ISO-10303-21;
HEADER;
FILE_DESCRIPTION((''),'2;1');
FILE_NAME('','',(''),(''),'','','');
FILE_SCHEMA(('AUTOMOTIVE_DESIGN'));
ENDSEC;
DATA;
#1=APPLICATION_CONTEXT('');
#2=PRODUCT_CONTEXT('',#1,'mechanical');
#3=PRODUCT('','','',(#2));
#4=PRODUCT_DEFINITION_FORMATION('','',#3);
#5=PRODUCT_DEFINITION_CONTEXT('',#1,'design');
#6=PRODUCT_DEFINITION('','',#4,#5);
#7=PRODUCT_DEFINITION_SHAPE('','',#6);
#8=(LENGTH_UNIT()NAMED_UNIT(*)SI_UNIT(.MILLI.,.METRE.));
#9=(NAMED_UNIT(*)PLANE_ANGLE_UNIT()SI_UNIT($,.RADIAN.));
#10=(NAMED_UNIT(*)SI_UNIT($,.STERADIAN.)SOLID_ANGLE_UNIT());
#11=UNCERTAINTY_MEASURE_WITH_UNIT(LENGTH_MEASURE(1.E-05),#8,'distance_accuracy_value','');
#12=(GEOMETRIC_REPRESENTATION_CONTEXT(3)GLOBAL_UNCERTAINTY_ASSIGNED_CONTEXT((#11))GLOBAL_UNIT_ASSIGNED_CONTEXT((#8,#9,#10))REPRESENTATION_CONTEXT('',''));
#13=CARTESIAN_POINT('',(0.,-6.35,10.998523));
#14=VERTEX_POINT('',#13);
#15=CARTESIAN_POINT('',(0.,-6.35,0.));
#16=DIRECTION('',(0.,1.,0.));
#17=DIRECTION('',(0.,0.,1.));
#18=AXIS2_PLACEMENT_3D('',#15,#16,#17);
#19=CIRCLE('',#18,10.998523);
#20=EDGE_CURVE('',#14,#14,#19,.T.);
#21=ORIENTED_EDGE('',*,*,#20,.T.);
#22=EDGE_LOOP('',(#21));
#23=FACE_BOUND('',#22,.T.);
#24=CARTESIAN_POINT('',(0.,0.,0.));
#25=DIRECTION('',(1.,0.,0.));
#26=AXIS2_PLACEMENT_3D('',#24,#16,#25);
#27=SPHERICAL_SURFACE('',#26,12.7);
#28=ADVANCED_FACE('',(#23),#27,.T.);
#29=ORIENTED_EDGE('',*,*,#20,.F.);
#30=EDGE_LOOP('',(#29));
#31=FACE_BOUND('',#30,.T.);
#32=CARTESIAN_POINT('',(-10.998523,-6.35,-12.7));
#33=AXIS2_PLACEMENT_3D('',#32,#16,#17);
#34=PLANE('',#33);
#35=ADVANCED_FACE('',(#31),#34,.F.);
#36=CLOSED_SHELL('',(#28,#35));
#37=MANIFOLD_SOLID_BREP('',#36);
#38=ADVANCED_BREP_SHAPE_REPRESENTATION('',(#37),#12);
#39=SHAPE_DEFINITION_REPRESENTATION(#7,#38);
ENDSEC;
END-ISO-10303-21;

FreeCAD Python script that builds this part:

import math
import FreeCAD as App
import Part
import Sketcher

doc = App.newDocument("Part")
body = doc.addObject("PartDesign::Body", "Body")

sketch1 = doc.addObject("Sketcher::SketchObject", "Sketch")
body.addObject(sketch1)
sketch1.AttachmentSupport = (doc.XY_Plane, [""])
sketch1.MapMode = "FlatFace"
sketch1.addGeometry([
    Part.LineSegment(App.Vector(0, 13, 0), App.Vector(0, -13, 0)),
    Part.ArcOfCircle(Part.Circle(App.Vector(0, 0, 0), App.Vector(0, 0, 1), 13), math.radians(-90), math.radians(90)),
], False)
sketch1.addConstraint([
    Sketcher.Constraint("Coincident", 0, 1, 1, 2),
    Sketcher.Constraint("Coincident", 1, 1, 0, 2),
    Sketcher.Constraint("Vertical", 0),
    Sketcher.Constraint("Coincident", 1, 3, -1, 1),
    Sketcher.Constraint("PointOnObject", 0, 1, -2),
    Sketcher.Constraint("Radius", 1, 12.7),
])
revolution = doc.addObject("PartDesign::Revolution", "Revolution")
body.addObject(revolution)
revolution.Profile = sketch1
revolution.ReferenceAxis = (sketch1, ["V_Axis"])
revolution.Angle = 360

sketch2 = doc.addObject("Sketcher::SketchObject", "Sketch001")
body.addObject(sketch2)
sketch2.AttachmentSupport = (doc.XY_Plane, [""])
sketch2.MapMode = "FlatFace"
sketch2.addGeometry([
    Part.LineSegment(App.Vector(11, -6, 0), App.Vector(-11, -6, 0)),
    Part.ArcOfCircle(Part.Circle(App.Vector(0, 0, 0), App.Vector(0, 0, 1), 13), math.radians(-150), math.radians(-30)),
], False)
sketch2.addConstraint([
    Sketcher.Constraint("Coincident", 0, 1, 1, 2),
    Sketcher.Constraint("Coincident", 1, 1, 0, 2),
    Sketcher.Constraint("Horizontal", 0),
    Sketcher.Constraint("Coincident", 1, 3, -1, 1),
    Sketcher.Constraint("Radius", 1, 12.7),
    Sketcher.Constraint("DistanceY", 0, 1, -1, 1, 6.35),
])
pocket1 = doc.addObject("PartDesign::Pocket", "Pocket")
body.addObject(pocket1)
pocket1.Profile = sketch2
pocket1.Type = "ThroughAll"
pocket1.Midplane = True

doc.recompute()
